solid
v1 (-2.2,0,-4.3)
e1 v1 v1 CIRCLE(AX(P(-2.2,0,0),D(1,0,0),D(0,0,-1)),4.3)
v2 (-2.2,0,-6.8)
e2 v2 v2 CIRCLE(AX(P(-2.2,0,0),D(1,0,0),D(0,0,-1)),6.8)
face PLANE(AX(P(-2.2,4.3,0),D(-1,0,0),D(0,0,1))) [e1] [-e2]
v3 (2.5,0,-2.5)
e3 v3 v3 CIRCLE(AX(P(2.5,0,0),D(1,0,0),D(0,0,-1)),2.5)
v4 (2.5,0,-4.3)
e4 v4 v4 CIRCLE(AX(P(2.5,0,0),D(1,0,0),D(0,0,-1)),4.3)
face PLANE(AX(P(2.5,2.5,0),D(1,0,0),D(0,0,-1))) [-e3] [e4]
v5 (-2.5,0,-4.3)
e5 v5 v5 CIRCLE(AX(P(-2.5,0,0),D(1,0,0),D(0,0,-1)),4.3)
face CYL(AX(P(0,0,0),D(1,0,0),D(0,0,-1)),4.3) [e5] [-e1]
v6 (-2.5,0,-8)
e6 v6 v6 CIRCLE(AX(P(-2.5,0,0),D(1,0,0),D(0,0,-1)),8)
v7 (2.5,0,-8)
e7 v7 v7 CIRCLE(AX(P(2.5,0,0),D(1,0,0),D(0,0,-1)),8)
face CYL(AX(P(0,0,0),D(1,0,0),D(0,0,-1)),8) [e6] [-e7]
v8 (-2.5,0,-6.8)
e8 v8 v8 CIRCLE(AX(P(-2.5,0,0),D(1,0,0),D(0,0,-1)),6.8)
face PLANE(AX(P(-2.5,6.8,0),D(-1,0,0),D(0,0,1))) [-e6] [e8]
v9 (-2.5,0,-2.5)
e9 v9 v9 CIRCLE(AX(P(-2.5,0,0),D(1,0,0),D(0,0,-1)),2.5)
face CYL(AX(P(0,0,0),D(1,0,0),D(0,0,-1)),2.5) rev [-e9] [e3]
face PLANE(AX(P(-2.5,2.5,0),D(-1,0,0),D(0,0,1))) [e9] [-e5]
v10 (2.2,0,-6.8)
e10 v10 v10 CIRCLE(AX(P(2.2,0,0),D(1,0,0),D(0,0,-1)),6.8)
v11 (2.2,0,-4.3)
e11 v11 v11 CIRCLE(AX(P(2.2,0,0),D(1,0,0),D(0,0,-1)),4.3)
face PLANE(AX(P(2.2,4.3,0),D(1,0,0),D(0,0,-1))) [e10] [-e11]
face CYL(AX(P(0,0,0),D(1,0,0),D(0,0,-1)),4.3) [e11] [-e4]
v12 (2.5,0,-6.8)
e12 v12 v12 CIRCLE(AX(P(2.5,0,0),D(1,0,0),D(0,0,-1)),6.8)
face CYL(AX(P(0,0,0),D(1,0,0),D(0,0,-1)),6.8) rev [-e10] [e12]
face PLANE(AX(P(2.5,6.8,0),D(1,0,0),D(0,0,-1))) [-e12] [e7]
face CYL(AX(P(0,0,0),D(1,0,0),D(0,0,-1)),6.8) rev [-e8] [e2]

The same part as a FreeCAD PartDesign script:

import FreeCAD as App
import Part
import Sketcher


def add_polygon(sketch, points):
    """Adds a closed chain of lines whose ends are joined by coincident constraints."""
    first, n = sketch.GeometryCount, len(points)
    for a, b in zip(points, points[1:] + points[:1]):
        sketch.addGeometry(Part.LineSegment(App.Vector(*a, 0), App.Vector(*b, 0)), False)
    for i in range(n):
        sketch.addConstraint(Sketcher.Constraint("Coincident", first + i, 2, first + (i + 1) % n, 1))

doc = App.newDocument("Part")
params = doc.addObject("Spreadsheet::Sheet", "Params")
for row, (alias, value) in enumerate([
    ("sketch1_width", "5 mm"),
    ("sketch1_width2", "0.3 mm"),
    ("sketch1_height", "1.8 mm"),
    ("sketch1_height2", "2.5 mm"),
    ("sketch1_height3", "1.2 mm"),
    ("revolution_angle", "360 deg"),
], start=1):
    params.set(f"A{row}", alias)
    params.set(f"B{row}", "=" + value)
    params.setAlias(f"B{row}", alias)

body = doc.addObject("PartDesign::Body", "Body")

# Sketch on XY plane
sketch1 = doc.addObject("Sketcher::SketchObject", "Sketch")
body.addObject(sketch1)
sketch1.AttachmentSupport = (doc.XY_Plane, [""])
sketch1.MapMode = "FlatFace"
add_polygon(sketch1, [(-2.5, 2.5), (2.5, 2.5), (2.5, 4.3), (2.2, 4.3), (2.2, 6.8), (2.5, 6.8), (2.5, 8), (-2.5, 8), (-2.5, 6.8), (-2.2, 6.8), (-2.2, 4.3), (-2.5, 4.3)])  # lines 0-11
sketch1.addConstraint(Sketcher.Constraint("Horizontal", 0))
sketch1.addConstraint(Sketcher.Constraint("Vertical", 1))
sketch1.addConstraint(Sketcher.Constraint("Horizontal", 2))
sketch1.addConstraint(Sketcher.Constraint("Vertical", 3))
sketch1.addConstraint(Sketcher.Constraint("Horizontal", 4))
sketch1.addConstraint(Sketcher.Constraint("Vertical", 5))
sketch1.addConstraint(Sketcher.Constraint("Horizontal", 6))
sketch1.addConstraint(Sketcher.Constraint("Vertical", 7))
sketch1.addConstraint(Sketcher.Constraint("Horizontal", 8))
sketch1.addConstraint(Sketcher.Constraint("Vertical", 9))
sketch1.addConstraint(Sketcher.Constraint("Horizontal", 10))
sketch1.addConstraint(Sketcher.Constraint("Vertical", 11))
sketch1.addConstraint(Sketcher.Constraint("Symmetric", 4, 2, 7, 2, -2))
sketch1.addConstraint(Sketcher.Constraint("Symmetric", 2, 2, 9, 2, -2))
sketch1.addConstraint(Sketcher.Constraint("Vertical", 1, 2, 4, 2))
sketch1.addConstraint(Sketcher.Constraint("Vertical", 7, 2, 10, 2))
sketch1.addConstraint(Sketcher.Constraint("DistanceX", 0, 1, 0, 2, 5.0))
sketch1.addConstraint(Sketcher.Constraint("DistanceX", 2, 2, 2, 1, 0.3))
sketch1.addConstraint(Sketcher.Constraint("DistanceY", 1, 1, 1, 2, 1.8))
sketch1.addConstraint(Sketcher.Constraint("DistanceY", 3, 1, 3, 2, 2.5))
sketch1.addConstraint(Sketcher.Constraint("DistanceY", 5, 1, 5, 2, 1.2))
sketch1.addConstraint(Sketcher.Constraint("DistanceY", -1, 1, 5, 2, 8.0))
sketch1.setExpression("Constraints[28]", "Params.sketch1_width")
sketch1.setExpression("Constraints[29]", "Params.sketch1_width2")
sketch1.setExpression("Constraints[30]", "Params.sketch1_height")
sketch1.setExpression("Constraints[31]", "Params.sketch1_height2")
sketch1.setExpression("Constraints[32]", "Params.sketch1_height3")
revolution = doc.addObject("PartDesign::Revolution", "Revolution")
body.addObject(revolution)
revolution.Profile = sketch1
revolution.ReferenceAxis = (sketch1, ["H_Axis"])
revolution.setExpression("Angle", "Params.revolution_angle")

doc.recompute()
